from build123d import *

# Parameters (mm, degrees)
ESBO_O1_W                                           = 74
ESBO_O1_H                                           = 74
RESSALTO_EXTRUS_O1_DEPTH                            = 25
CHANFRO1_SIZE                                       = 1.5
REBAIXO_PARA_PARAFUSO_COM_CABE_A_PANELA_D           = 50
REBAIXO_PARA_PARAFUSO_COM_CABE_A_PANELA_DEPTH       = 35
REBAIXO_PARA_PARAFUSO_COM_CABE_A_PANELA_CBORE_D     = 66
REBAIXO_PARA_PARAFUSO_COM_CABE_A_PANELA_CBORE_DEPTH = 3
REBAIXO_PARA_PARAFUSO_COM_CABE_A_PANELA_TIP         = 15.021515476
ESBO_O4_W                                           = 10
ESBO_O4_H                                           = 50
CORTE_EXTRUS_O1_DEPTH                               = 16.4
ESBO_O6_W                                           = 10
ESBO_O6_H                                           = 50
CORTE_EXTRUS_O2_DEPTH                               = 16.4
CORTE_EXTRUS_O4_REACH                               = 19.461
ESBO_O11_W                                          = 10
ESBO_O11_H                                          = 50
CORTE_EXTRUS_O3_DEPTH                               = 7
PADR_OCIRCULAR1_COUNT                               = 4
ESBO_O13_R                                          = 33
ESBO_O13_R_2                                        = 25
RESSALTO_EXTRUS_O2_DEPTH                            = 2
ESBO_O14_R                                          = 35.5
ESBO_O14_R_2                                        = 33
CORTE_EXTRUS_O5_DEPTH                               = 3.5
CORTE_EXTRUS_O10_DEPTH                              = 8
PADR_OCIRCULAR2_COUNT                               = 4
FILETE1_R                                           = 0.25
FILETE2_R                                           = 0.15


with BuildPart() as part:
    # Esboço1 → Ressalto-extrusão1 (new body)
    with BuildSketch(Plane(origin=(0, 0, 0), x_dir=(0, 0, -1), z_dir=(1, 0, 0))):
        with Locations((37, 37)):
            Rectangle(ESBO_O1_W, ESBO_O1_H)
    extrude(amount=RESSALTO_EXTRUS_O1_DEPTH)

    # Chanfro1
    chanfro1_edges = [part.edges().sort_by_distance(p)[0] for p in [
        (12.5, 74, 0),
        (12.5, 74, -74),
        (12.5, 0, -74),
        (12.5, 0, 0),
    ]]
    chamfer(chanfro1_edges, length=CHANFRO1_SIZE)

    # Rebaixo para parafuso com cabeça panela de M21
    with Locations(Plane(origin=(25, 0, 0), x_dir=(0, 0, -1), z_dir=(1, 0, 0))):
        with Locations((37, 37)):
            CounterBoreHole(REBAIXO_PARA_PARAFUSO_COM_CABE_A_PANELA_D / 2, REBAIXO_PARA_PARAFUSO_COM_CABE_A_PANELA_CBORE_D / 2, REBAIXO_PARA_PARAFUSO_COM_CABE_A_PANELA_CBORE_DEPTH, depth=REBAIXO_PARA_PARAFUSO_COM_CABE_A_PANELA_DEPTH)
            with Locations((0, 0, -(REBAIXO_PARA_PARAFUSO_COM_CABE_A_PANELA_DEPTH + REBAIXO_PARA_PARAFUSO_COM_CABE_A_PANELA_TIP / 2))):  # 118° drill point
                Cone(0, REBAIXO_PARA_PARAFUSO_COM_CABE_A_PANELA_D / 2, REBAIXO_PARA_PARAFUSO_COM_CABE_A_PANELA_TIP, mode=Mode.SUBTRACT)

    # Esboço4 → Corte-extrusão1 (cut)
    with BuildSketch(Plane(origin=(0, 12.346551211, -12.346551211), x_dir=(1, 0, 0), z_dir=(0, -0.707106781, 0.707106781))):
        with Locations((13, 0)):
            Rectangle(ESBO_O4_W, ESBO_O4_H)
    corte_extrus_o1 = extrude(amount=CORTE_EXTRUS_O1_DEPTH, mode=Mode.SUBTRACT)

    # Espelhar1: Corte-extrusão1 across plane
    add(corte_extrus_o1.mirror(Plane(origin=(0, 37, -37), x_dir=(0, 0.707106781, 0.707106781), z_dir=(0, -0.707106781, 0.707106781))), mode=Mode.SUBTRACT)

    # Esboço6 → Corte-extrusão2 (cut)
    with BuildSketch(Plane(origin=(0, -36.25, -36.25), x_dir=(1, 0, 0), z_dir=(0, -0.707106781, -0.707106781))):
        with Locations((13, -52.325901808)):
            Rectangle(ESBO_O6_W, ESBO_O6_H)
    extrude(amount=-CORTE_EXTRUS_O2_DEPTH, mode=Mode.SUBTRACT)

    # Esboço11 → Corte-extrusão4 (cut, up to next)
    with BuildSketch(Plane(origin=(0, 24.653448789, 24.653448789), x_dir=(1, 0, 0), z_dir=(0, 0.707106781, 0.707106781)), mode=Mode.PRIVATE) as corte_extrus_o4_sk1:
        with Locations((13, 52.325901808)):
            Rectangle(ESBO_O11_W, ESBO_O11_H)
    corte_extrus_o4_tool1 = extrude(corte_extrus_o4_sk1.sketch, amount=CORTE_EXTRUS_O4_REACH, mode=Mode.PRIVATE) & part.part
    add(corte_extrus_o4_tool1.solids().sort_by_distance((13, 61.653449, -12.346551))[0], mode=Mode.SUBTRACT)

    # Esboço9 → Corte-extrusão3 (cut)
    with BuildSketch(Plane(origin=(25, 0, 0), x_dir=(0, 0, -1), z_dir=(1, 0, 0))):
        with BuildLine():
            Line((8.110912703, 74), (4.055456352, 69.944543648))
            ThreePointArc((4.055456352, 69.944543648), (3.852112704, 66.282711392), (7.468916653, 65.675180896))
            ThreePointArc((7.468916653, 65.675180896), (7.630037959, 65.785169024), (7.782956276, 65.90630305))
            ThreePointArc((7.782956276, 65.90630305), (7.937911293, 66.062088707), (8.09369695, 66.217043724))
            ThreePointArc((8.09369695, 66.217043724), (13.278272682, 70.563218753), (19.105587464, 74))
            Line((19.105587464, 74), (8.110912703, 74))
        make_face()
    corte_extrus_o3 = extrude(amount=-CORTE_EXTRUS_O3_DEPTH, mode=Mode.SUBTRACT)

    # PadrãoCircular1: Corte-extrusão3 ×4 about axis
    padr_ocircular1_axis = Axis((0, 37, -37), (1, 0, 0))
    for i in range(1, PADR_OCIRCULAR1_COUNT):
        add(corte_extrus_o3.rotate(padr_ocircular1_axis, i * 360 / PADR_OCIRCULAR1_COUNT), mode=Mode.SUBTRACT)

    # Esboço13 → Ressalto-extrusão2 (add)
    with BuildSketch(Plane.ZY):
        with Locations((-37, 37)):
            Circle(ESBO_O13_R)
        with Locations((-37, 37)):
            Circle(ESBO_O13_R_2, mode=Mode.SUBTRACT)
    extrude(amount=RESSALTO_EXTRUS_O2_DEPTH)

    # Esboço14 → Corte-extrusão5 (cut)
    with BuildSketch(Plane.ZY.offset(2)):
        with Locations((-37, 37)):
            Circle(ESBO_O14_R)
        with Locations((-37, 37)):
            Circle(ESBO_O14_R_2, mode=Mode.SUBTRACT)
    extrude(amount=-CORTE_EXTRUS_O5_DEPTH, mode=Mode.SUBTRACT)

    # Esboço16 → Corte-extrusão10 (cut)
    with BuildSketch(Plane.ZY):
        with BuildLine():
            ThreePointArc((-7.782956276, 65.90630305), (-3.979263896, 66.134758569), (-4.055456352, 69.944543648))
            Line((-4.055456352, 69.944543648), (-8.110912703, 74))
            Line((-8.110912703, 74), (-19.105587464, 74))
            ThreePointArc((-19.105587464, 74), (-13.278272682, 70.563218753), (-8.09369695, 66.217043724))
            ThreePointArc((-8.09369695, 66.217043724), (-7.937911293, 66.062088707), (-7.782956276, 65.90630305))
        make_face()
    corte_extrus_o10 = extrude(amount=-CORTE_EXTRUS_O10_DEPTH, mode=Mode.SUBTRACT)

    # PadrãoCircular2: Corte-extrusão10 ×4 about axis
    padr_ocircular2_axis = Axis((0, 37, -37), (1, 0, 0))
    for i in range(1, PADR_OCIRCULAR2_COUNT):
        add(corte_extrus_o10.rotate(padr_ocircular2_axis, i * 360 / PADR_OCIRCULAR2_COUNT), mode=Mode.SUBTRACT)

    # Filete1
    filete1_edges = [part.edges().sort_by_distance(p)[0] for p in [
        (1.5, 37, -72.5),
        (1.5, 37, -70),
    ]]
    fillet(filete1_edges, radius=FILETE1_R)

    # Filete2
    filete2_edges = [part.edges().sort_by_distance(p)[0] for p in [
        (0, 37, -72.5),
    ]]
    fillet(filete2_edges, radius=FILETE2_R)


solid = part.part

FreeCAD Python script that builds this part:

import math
import FreeCAD as App
import Part
import Sketcher
from FreeCAD import Vector
Q = App.Units.Quantity


def edges_at(feature, points):
    """Names of the edges that pass closest to the given points."""
    edges = feature.Shape.Edges
    near = lambda p: min(range(len(edges)), key=lambda i: edges[i].distToShape(Part.Vertex(*p))[0])
    return sorted({f"Edge{near(p) + 1}" for p in points})


def add_polygon(sketch, points):
    """Adds a closed chain of lines whose ends are joined by coincident constraints."""
    first, n = sketch.GeometryCount, len(points)
    for a, b in zip(points, points[1:] + points[:1]):
        sketch.addGeometry(Part.LineSegment(App.Vector(*a, 0), App.Vector(*b, 0)), False)
    for i in range(n):
        sketch.addConstraint(Sketcher.Constraint("Coincident", first + i, 2, first + (i + 1) % n, 1))

doc = App.newDocument("Part")
params = doc.addObject("Spreadsheet::Sheet", "Params")
for row, (alias, value) in enumerate([
    ("sketch1_width", "74 mm"),
    ("pad1_length", "25 mm"),
    ("chamfer_size", "1.5 mm"),
    ("sketch2_diameter", "50 mm"),
    ("hole_diameter", "50 mm"),
    ("hole_depth", "35 mm"),
    ("hole_cbore_diameter", "66 mm"),
    ("hole_cbore_depth", "3 mm"),
    ("sketch3_width", "10 mm"),
    ("sketch3_height", "50 mm"),
    ("pocket1_length", "16.4 mm"),
    ("sketch4_width", "10 mm"),
    ("sketch4_height", "50 mm"),
    ("pocket2_length", "16.4 mm"),
    ("sketch5_width", "10 mm"),
    ("sketch5_height", "50 mm"),
    ("sketch6_radius", "41.1 mm"),
    ("sketch6_radius2", "2.75 mm"),
    ("pocket4_length", "7 mm"),
    ("sketch7_diameter", "66 mm"),
    ("sketch7_diameter2", "50 mm"),
    ("pad2_length", "2 mm"),
    ("sketch8_diameter", "71 mm"),
    ("sketch8_diameter2", "66 mm"),
    ("pocket5_length", "3.5 mm"),
    ("sketch9_radius", "41.1 mm"),
    ("sketch9_radius2", "2.75 mm"),
    ("pocket6_length", "8 mm"),
    ("fillet_radius", "0.25 mm"),
    ("fillet2_radius", "0.15 mm"),
], start=1):
    params.set(f"A{row}", alias)
    params.set(f"B{row}", "=" + value)
    params.setAlias(f"B{row}", alias)

body = doc.addObject("PartDesign::Body", "Body")

# Sketch on YZ plane
sketch1 = doc.addObject("Sketcher::SketchObject", "Sketch")
body.addObject(sketch1)
sketch1.AttachmentSupport = (doc.YZ_Plane, [""])
sketch1.MapMode = "FlatFace"
add_polygon(sketch1, [(74, 0), (0, 0), (0, -74), (74, -74)])  # lines 0-3
sketch1.addConstraint(Sketcher.Constraint("Horizontal", 0))
sketch1.addConstraint(Sketcher.Constraint("Vertical", 1))
sketch1.addConstraint(Sketcher.Constraint("Horizontal", 2))
sketch1.addConstraint(Sketcher.Constraint("Vertical", 3))
sketch1.addConstraint(Sketcher.Constraint("Coincident", 0, 2, -1, 1))
sketch1.addConstraint(Sketcher.Constraint("Equal", 2, 1))
sketch1.addConstraint(Sketcher.Constraint("DistanceX", 0, 2, 0, 1, Q("74 mm")))
sketch1.setExpression("Constraints[10]", "Params.sketch1_width")
pad1 = doc.addObject("PartDesign::Pad", "Pad")
body.addObject(pad1)
pad1.Profile = sketch1
pad1.setExpression("Length", "Params.pad1_length")
doc.recompute()

chamfer = doc.addObject("PartDesign::Chamfer", "Chamfer")
body.addObject(chamfer)
chamfer.Base = (pad1, edges_at(pad1, [
    (12.5, 74, 0),
    (12.5, 74, -74),
    (12.5, 0, -74),
    (12.5, 0, 0),
]))
chamfer.setExpression("Size", "Params.chamfer_size")

# Sketch on YZ plane
sketch2 = doc.addObject("Sketcher::SketchObject", "Sketch001")
body.addObject(sketch2)
sketch2.AttachmentSupport = (doc.YZ_Plane, [""])
sketch2.MapMode = "FlatFace"
sketch2.AttachmentOffset = App.Placement(Vector(0, 0, 25), App.Rotation())
sketch2.addGeometry(Part.Circle(Vector(37, -37, 0), Vector(0, 0, 1), 25), False)
sketch2.addConstraint(Sketcher.Constraint("Diameter", 0, Q("50 mm")))
sketch2.addConstraint(Sketcher.Constraint("DistanceX", -1, 1, 0, 3, Q("37 mm")))
sketch2.addConstraint(Sketcher.Constraint("DistanceY", 0, 3, -1, 1, Q("37 mm")))
sketch2.setExpression("Constraints[0]", "Params.sketch2_diameter")
doc.recompute()
hole = doc.addObject("PartDesign::Hole", "Hole")
body.addObject(hole)
hole.Profile = sketch2
hole.ThreadType = "None"
hole.setExpression("Diameter", "Params.hole_diameter")
hole.DepthType = "Dimension"
hole.setExpression("Depth", "Params.hole_depth")
hole.DrillPoint = "Angled"
hole.DrillPointAngle = 118
hole.HoleCutType = "Counterbore"
hole.setExpression("HoleCutDiameter", "Params.hole_cbore_diameter")
hole.setExpression("HoleCutDepth", "Params.hole_cbore_depth")

# Sketch on an angled plane
sketch3 = doc.addObject("Sketcher::SketchObject", "Sketch002")
body.addObject(sketch3)
sketch3.Placement = App.Placement(Vector(0, 12.346551, -12.346551), App.Rotation(Vector(1, 0, 0), Vector(0, 0.707106781, 0.707106781), Vector(0, -0.707106781, 0.707106781), "ZXY"))
add_polygon(sketch3, [(8, 25), (8, -25), (18, -25), (18, 25)])  # lines 0-3
sketch3.addConstraint(Sketcher.Constraint("Vertical", 0))
sketch3.addConstraint(Sketcher.Constraint("Horizontal", 1))
sketch3.addConstraint(Sketcher.Constraint("Vertical", 2))
sketch3.addConstraint(Sketcher.Constraint("Horizontal", 3))
sketch3.addConstraint(Sketcher.Constraint("DistanceX", 1, 1, 1, 2, Q("10 mm")))
sketch3.addConstraint(Sketcher.Constraint("DistanceY", 0, 2, 0, 1, Q("50 mm")))
sketch3.addConstraint(Sketcher.Constraint("DistanceX", -1, 1, 0, 2, Q("8 mm")))
sketch3.addConstraint(Sketcher.Constraint("DistanceY", 0, 2, -1, 1, Q("25 mm")))
sketch3.setExpression("Constraints[8]", "Params.sketch3_width")
sketch3.setExpression("Constraints[9]", "Params.sketch3_height")
pocket1 = doc.addObject("PartDesign::Pocket", "Pocket")
body.addObject(pocket1)
pocket1.Profile = sketch3
pocket1.setExpression("Length", "Params.pocket1_length")
pocket1.Reversed = True
doc.recompute()

datumplane = doc.addObject("PartDesign::Plane", "DatumPlane")
body.addObject(datumplane)
datumplane.Placement = App.Placement(Vector(0, 37, -37), App.Rotation(Vector(0, 0.707106781, 0.707106781), Vector(-1, 0, 0), Vector(0, -0.707106781, 0.707106781), "ZXY"))
mirrored = doc.addObject("PartDesign::Mirrored", "Mirrored")
body.addObject(mirrored)
mirrored.Originals = [pocket1]
mirrored.MirrorPlane = (datumplane, [""])
body.Tip = mirrored

# Sketch on an angled plane
sketch4 = doc.addObject("Sketcher::SketchObject", "Sketch003")
body.addObject(sketch4)
sketch4.Placement = App.Placement(Vector(0, -36.25, -36.25), App.Rotation(Vector(1, 0, 0), Vector(0, -0.707106781, 0.707106781), Vector(0, -0.707106781, -0.707106781), "ZXY"))
add_polygon(sketch4, [(8, -27), (8, -77), (18, -77), (18, -27)])  # lines 0-3
sketch4.addConstraint(Sketcher.Constraint("Vertical", 0))
sketch4.addConstraint(Sketcher.Constraint("Horizontal", 1))
sketch4.addConstraint(Sketcher.Constraint("Vertical", 2))
sketch4.addConstraint(Sketcher.Constraint("Horizontal", 3))
sketch4.addConstraint(Sketcher.Constraint("DistanceX", 1, 1, 1, 2, Q("10 mm")))
sketch4.addConstraint(Sketcher.Constraint("DistanceY", 0, 2, 0, 1, Q("50 mm")))
sketch4.addConstraint(Sketcher.Constraint("DistanceX", -1, 1, 0, 2, Q("8 mm")))
sketch4.addConstraint(Sketcher.Constraint("DistanceY", 0, 2, -1, 1, Q("77.325902 mm")))
sketch4.setExpression("Constraints[8]", "Params.sketch4_width")
sketch4.setExpression("Constraints[9]", "Params.sketch4_height")
pocket2 = doc.addObject("PartDesign::Pocket", "Pocket001")
body.addObject(pocket2)
pocket2.Profile = sketch4
pocket2.setExpression("Length", "Params.pocket2_length")

# Sketch on an angled plane
sketch5 = doc.addObject("Sketcher::SketchObject", "Sketch004")
body.addObject(sketch5)
sketch5.Placement = App.Placement(Vector(0, 24.653449, 24.653449), App.Rotation(Vector(1, 0, 0), Vector(0, 0.707106781, -0.707106781), Vector(0, 0.707106781, 0.707106781), "ZXY"))
add_polygon(sketch5, [(8, 77), (8, 27), (18, 27), (18, 77)])  # lines 0-3
sketch5.addConstraint(Sketcher.Constraint("Vertical", 0))
sketch5.addConstraint(Sketcher.Constraint("Horizontal", 1))
sketch5.addConstraint(Sketcher.Constraint("Vertical", 2))
sketch5.addConstraint(Sketcher.Constraint("Horizontal", 3))
sketch5.addConstraint(Sketcher.Constraint("DistanceX", 1, 1, 1, 2, Q("10 mm")))
sketch5.addConstraint(Sketcher.Constraint("DistanceY", 0, 2, 0, 1, Q("50 mm")))
sketch5.addConstraint(Sketcher.Constraint("DistanceX", -1, 1, 0, 2, Q("8 mm")))
sketch5.addConstraint(Sketcher.Constraint("DistanceY", -1, 1, 0, 2, Q("27.325902 mm")))
sketch5.setExpression("Constraints[8]", "Params.sketch5_width")
sketch5.setExpression("Constraints[9]", "Params.sketch5_height")
pocket3 = doc.addObject("PartDesign::Pocket", "Pocket002")
body.addObject(pocket3)
pocket3.Profile = sketch5
pocket3.Type = "UpToFirst"
pocket3.Reversed = True

# Sketch on YZ plane
sketch6 = doc.addObject("Sketcher::SketchObject", "Sketch005")
body.addObject(sketch6)
sketch6.AttachmentSupport = (doc.YZ_Plane, [""])
sketch6.MapMode = "FlatFace"
sketch6.AttachmentOffset = App.Placement(Vector(0, 0, 25), App.Rotation())
sketch6.addGeometry(Part.LineSegment(Vector(74, -8.11, 0), Vector(69.94, -4.06, 0)), False)
sketch6.addGeometry(Part.ArcOfCircle(Part.Circle(Vector(68, -6, 0), Vector(0, 0, 1), 2.75), math.radians(45), math.radians(212)), False)
sketch6.addGeometry(Part.ArcOfCircle(Part.Circle(Vector(68, -6, 0), Vector(0, 0, 1), 2.75), math.radians(-147.71), math.radians(-139.58)), False)
sketch6.addGeometry(Part.ArcOfCircle(Part.Circle(Vector(37, -37, 0), Vector(0, 0, 1), 41.1), math.radians(44.69), math.radians(45.31)), False)
sketch6.addGeometry(Part.ArcOfCircle(Part.Circle(Vector(37, -37, 0), Vector(0, 0, 1), 41.1), math.radians(25.81), math.radians(44.69)), False)
sketch6.addGeometry(Part.LineSegment(Vector(74, -19.11, 0), Vector(74, -8.11, 0)), False)
sketch6.addConstraint(Sketcher.Constraint("Tangent", 0, 2, 1, 1))
sketch6.addConstraint(Sketcher.Constraint("Tangent", 1, 2, 2, 1))
sketch6.addConstraint(Sketcher.Constraint("Coincident", 2, 2, 3, 2))
sketch6.addConstraint(Sketcher.Constraint("Tangent", 3, 1, 4, 2))
sketch6.addConstraint(Sketcher.Constraint("Coincident", 4, 1, 5, 1))
sketch6.addConstraint(Sketcher.Constraint("Coincident", 5, 2, 0, 1))
sketch6.addConstraint(Sketcher.Constraint("Vertical", 5))
sketch6.addConstraint(Sketcher.Constraint("Equal", 1, 2))
sketch6.addConstraint(Sketcher.Constraint("Radius", 4, Q("41.1 mm")))
sketch6.addConstraint(Sketcher.Constraint("Angle", 0, Q("135 deg")))
sketch6.addConstraint(Sketcher.Constraint("Radius", 1, Q("2.75 mm")))
sketch6.addConstraint(Sketcher.Constraint("DistanceX", -1, 1, 1, 3, Q("68 mm")))
sketch6.addConstraint(Sketcher.Constraint("DistanceY", 1, 3, -1, 1, Q("6 mm")))
sketch6.addConstraint(Sketcher.Constraint("DistanceX", -1, 1, 4, 3, Q("37 mm")))
sketch6.addConstraint(Sketcher.Constraint("DistanceY", 4, 3, -1, 1, Q("37 mm")))
sketch6.addConstraint(Sketcher.Constraint("DistanceX", -1, 1, 4, 1, Q("74 mm")))
sketch6.addConstraint(Sketcher.Constraint("Radius", 3, Q("41.099967 mm")))
sketch6.addConstraint(Sketcher.Constraint("DistanceX", 3, 1, 0, 2, Q("3.7275 mm")))
sketch6.addConstraint(Sketcher.Constraint("DistanceX", -1, 1, 1, 2, Q("65.675181 mm")))
sketch6.setExpression("Constraints[8]", "Params.sketch6_radius")
sketch6.setExpression("Constraints[10]", "Params.sketch6_radius2")
pocket4 = doc.addObject("PartDesign::Pocket", "Pocket003")
body.addObject(pocket4)
pocket4.Profile = sketch6
pocket4.setExpression("Length", "Params.pocket4_length")
doc.recompute()

datumline = doc.addObject("PartDesign::Line", "DatumLine")
body.addObject(datumline)
datumline.Placement = App.Placement(Vector(0, 37, -37), App.Rotation(Vector(0, 0, 1), Vector(1, 0, 0)))
polarpattern = doc.addObject("PartDesign::PolarPattern", "PolarPattern")
body.addObject(polarpattern)
polarpattern.Originals = [pocket4]
polarpattern.Axis = (datumline, [""])
polarpattern.Angle = 360
polarpattern.Occurrences = 4
body.Tip = polarpattern

# Sketch on YZ plane
sketch7 = doc.addObject("Sketcher::SketchObject", "Sketch006")
body.addObject(sketch7)
sketch7.AttachmentSupport = (doc.YZ_Plane, [""])
sketch7.MapMode = "FlatFace"
sketch7.addGeometry(Part.Circle(Vector(37, -37, 0), Vector(0, 0, 1), 33), False)
sketch7.addGeometry(Part.Circle(Vector(37, -37, 0), Vector(0, 0, 1), 25), False)
sketch7.addConstraint(Sketcher.Constraint("Coincident", 1, 3, 0, 3))
sketch7.addConstraint(Sketcher.Constraint("Diameter", 0, Q("66 mm")))
sketch7.addConstraint(Sketcher.Constraint("Diameter", 1, Q("50 mm")))
sketch7.addConstraint(Sketcher.Constraint("DistanceX", -1, 1, 0, 3, Q("37 mm")))
sketch7.addConstraint(Sketcher.Constraint("DistanceY", 0, 3, -1, 1, Q("37 mm")))
sketch7.setExpression("Constraints[1]", "Params.sketch7_diameter")
sketch7.setExpression("Constraints[2]", "Params.sketch7_diameter2")
pad2 = doc.addObject("PartDesign::Pad", "Pad001")
body.addObject(pad2)
pad2.Profile = sketch7
pad2.setExpression("Length", "Params.pad2_length")
pad2.Reversed = True

# Sketch on YZ plane
sketch8 = doc.addObject("Sketcher::SketchObject", "Sketch007")
body.addObject(sketch8)
sketch8.AttachmentSupport = (doc.YZ_Plane, [""])
sketch8.MapMode = "FlatFace"
sketch8.AttachmentOffset = App.Placement(Vector(0, 0, -2), App.Rotation())
sketch8.addGeometry(Part.Circle(Vector(37, -37, 0), Vector(0, 0, 1), 36), False)
sketch8.addGeometry(Part.Circle(Vector(37, -37, 0), Vector(0, 0, 1), 33), False)
sketch8.addConstraint(Sketcher.Constraint("Coincident", 1, 3, 0, 3))
sketch8.addConstraint(Sketcher.Constraint("Diameter", 0, Q("71 mm")))
sketch8.addConstraint(Sketcher.Constraint("Diameter", 1, Q("66 mm")))
sketch8.addConstraint(Sketcher.Constraint("DistanceX", -1, 1, 0, 3, Q("37 mm")))
sketch8.addConstraint(Sketcher.Constraint("DistanceY", 0, 3, -1, 1, Q("37 mm")))
sketch8.setExpression("Constraints[1]", "Params.sketch8_diameter")
sketch8.setExpression("Constraints[2]", "Params.sketch8_diameter2")
pocket5 = doc.addObject("PartDesign::Pocket", "Pocket004")
body.addObject(pocket5)
pocket5.Profile = sketch8
pocket5.setExpression("Length", "Params.pocket5_length")
pocket5.Reversed = True

# Sketch on YZ plane
sketch9 = doc.addObject("Sketcher::SketchObject", "Sketch008")
body.addObject(sketch9)
sketch9.AttachmentSupport = (doc.YZ_Plane, [""])
sketch9.MapMode = "FlatFace"
sketch9.addGeometry(Part.ArcOfCircle(Part.Circle(Vector(68, -6, 0), Vector(0, 0, 1), 2.75), math.radians(45), math.radians(220)), False)
sketch9.addGeometry(Part.LineSegment(Vector(69.94, -4.06, 0), Vector(74, -8.11, 0)), False)
sketch9.addGeometry(Part.LineSegment(Vector(74, -8.11, 0), Vector(74, -19.11, 0)), False)
sketch9.addGeometry(Part.ArcOfCircle(Part.Circle(Vector(37, -37, 0), Vector(0, 0, 1), 41.1), math.radians(25.81), math.radians(44.69)), False)
sketch9.addGeometry(Part.ArcOfCircle(Part.Circle(Vector(37, -37, 0), Vector(0, 0, 1), 41.1), math.radians(44.69), math.radians(45.31)), False)
sketch9.addConstraint(Sketcher.Constraint("Tangent", 0, 1, 1, 1))
sketch9.addConstraint(Sketcher.Constraint("Coincident", 1, 2, 2, 1))
sketch9.addConstraint(Sketcher.Constraint("Coincident", 2, 2, 3, 1))
sketch9.addConstraint(Sketcher.Constraint("Tangent", 3, 2, 4, 1))
sketch9.addConstraint(Sketcher.Constraint("Coincident", 4, 2, 0, 2))
sketch9.addConstraint(Sketcher.Constraint("Vertical", 2))
sketch9.addConstraint(Sketcher.Constraint("Radius", 3, Q("41.1 mm")))
sketch9.addConstraint(Sketcher.Constraint("Angle", 1, Q("-45 deg")))
sketch9.addConstraint(Sketcher.Constraint("Radius", 0, Q("2.75 mm")))
sketch9.addConstraint(Sketcher.Constraint("DistanceX", -1, 1, 0, 3, Q("68 mm")))
sketch9.addConstraint(Sketcher.Constraint("DistanceY", 0, 3, -1, 1, Q("6 mm")))
sketch9.addConstraint(Sketcher.Constraint("DistanceX", -1, 1, 3, 3, Q("37 mm")))
sketch9.addConstraint(Sketcher.Constraint("DistanceY", 3, 3, -1, 1, Q("37 mm")))
sketch9.addConstraint(Sketcher.Constraint("DistanceX", -1, 1, 1, 2, Q("74 mm")))
sketch9.addConstraint(Sketcher.Constraint("Radius", 4, Q("41.099967 mm")))
sketch9.addConstraint(Sketcher.Constraint("DistanceX", 3, 2, 0, 1, Q("3.7275 mm")))
sketch9.setExpression("Constraints[6]", "Params.sketch9_radius")
sketch9.setExpression("Constraints[8]", "Params.sketch9_radius2")
pocket6 = doc.addObject("PartDesign::Pocket", "Pocket005")
body.addObject(pocket6)
pocket6.Profile = sketch9
pocket6.setExpression("Length", "Params.pocket6_length")
pocket6.Reversed = True
doc.recompute()

datumline2 = doc.addObject("PartDesign::Line", "DatumLine001")
body.addObject(datumline2)
datumline2.Placement = App.Placement(Vector(0, 37, -37), App.Rotation(Vector(0, 0, 1), Vector(1, 0, 0)))
polarpattern2 = doc.addObject("PartDesign::PolarPattern", "PolarPattern001")
body.addObject(polarpattern2)
polarpattern2.Originals = [pocket6]
polarpattern2.Axis = (datumline2, [""])
polarpattern2.Angle = 360
polarpattern2.Occurrences = 4
body.Tip = polarpattern2
doc.recompute()

fillet = doc.addObject("PartDesign::Fillet", "Fillet")
body.addObject(fillet)
fillet.Base = (polarpattern2, edges_at(polarpattern2, [(1.5, 37, -72.5), (1.5, 37, -70)]))
fillet.setExpression("Radius", "Params.fillet_radius")
doc.recompute()

fillet2 = doc.addObject("PartDesign::Fillet", "Fillet001")
body.addObject(fillet2)
fillet2.Base = (fillet, edges_at(fillet, [(0, 37, -72.5)]))
fillet2.setExpression("Radius", "Params.fillet2_radius")

doc.recompute()
